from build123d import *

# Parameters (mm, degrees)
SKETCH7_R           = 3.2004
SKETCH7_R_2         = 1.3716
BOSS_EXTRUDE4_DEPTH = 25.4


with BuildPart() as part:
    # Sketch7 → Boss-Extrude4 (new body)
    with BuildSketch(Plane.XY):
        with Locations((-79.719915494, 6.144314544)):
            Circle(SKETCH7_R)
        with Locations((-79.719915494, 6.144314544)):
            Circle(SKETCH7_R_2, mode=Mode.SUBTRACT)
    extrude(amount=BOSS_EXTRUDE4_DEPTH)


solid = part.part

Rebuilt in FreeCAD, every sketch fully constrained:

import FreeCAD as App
import Part
import Sketcher
Q = App.Units.Quantity

doc = App.newDocument("Part")
body = doc.addObject("PartDesign::Body", "Body")

# Sketch on XY plane
sketch1 = body.newObject("Sketcher::SketchObject", "Sketch")
sketch1.AttachmentSupport = (doc.getObject("XY_Plane"), [""])
sketch1.MapMode = "FlatFace"
sketch1.addGeometry([
    Part.Circle(App.Vector(-79.7, 6.1, 0), App.Vector(0, 0, 1), 3.2),
    Part.Circle(App.Vector(-79.7, 6.1, 0), App.Vector(0, 0, 1), 1.4),
], False)
sketch1.addConstraint([
    Sketcher.Constraint("Coincident", 1, 3, 0, 3),
    Sketcher.Constraint("Diameter", 0, Q("0.252 in")),
    Sketcher.Constraint("Diameter", 1, Q("0.108 in")),
    Sketcher.Constraint("DistanceX", 0, 3, -1, 1, Q("79.719915 mm")),
    Sketcher.Constraint("DistanceY", -1, 1, 0, 3, Q("6.144315 mm")),
])
pad1 = body.newObject("PartDesign::Pad", "Pad")
pad1.Profile = sketch1
pad1.Length = Q("1 in")

doc.recompute()
